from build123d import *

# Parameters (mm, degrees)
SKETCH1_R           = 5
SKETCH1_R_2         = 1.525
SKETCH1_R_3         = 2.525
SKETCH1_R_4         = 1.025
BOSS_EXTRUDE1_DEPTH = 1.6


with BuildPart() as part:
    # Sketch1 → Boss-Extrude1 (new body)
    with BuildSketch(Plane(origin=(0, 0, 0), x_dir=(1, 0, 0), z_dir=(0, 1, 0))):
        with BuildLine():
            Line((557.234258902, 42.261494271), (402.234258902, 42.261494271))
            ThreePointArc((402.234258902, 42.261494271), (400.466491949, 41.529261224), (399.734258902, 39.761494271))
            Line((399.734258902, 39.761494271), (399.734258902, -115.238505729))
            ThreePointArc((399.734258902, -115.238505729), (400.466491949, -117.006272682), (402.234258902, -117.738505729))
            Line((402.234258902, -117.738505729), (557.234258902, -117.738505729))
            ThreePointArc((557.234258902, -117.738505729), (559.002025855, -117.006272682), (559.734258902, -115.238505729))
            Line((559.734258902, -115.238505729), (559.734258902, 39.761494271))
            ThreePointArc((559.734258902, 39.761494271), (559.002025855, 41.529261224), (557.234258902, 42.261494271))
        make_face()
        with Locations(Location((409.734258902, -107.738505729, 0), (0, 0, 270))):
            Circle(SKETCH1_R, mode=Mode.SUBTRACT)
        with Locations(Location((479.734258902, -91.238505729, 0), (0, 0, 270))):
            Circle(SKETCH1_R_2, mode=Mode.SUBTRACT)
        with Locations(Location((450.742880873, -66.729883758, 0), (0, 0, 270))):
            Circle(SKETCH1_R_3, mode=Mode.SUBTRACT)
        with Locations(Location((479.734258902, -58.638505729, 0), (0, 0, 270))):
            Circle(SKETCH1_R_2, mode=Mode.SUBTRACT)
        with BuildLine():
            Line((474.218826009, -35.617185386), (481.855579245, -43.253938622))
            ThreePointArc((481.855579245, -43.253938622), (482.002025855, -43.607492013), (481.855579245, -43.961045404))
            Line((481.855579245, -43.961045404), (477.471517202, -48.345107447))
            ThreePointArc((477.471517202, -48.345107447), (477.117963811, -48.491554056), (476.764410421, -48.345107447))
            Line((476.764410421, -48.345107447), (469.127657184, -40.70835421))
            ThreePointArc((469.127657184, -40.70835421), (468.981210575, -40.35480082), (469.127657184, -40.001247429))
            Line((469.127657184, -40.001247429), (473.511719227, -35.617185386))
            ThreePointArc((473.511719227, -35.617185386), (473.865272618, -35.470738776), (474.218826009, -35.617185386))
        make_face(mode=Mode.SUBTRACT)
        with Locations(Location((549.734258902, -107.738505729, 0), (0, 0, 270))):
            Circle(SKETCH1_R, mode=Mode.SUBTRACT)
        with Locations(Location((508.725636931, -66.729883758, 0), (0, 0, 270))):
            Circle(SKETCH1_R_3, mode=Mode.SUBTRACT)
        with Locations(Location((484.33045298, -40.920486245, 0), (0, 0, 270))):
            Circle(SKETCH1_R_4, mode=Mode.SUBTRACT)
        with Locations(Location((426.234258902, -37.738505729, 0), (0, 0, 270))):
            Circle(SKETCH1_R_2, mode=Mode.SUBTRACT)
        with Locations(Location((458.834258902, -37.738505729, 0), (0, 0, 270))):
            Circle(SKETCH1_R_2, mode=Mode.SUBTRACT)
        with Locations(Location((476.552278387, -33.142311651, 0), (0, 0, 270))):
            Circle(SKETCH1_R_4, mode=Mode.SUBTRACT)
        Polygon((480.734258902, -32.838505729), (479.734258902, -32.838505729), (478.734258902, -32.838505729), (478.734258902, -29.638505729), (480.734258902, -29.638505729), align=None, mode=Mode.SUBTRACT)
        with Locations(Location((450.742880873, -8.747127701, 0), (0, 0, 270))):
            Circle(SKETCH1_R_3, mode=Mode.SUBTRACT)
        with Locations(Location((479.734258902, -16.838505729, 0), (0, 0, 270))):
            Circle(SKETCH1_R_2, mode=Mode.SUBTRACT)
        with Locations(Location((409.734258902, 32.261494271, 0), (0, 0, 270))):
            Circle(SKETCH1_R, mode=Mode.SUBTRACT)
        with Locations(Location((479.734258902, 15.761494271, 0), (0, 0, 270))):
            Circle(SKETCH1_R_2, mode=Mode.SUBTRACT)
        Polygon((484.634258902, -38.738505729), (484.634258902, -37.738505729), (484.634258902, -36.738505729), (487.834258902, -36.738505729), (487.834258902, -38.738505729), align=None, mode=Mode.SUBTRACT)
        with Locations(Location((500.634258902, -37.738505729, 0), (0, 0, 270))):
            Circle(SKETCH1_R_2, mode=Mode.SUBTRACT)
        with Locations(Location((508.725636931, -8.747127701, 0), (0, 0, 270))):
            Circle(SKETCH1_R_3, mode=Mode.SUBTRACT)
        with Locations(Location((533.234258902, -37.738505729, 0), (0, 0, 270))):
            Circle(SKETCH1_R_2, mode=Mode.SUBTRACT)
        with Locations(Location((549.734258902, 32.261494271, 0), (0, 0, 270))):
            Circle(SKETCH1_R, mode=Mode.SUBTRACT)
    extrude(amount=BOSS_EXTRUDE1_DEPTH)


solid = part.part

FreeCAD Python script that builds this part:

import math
import FreeCAD as App
import Part
import Sketcher
from FreeCAD import Vector
Q = App.Units.Quantity


def add_polygon(sketch, points):
    """Adds a closed chain of lines whose ends are joined by coincident constraints."""
    first, n = sketch.GeometryCount, len(points)
    for a, b in zip(points, points[1:] + points[:1]):
        sketch.addGeometry(Part.LineSegment(App.Vector(*a, 0), App.Vector(*b, 0)), False)
    for i in range(n):
        sketch.addConstraint(Sketcher.Constraint("Coincident", first + i, 2, first + (i + 1) % n, 1))

doc = App.newDocument("Part")
params = doc.addObject("Spreadsheet::Sheet", "Params")
for row, (alias, value) in enumerate([
    ("sketch1_diameter", "10 mm"),
    ("sketch1_radius", "2.5 mm"),
    ("sketch1_radius2", "0.5 mm"),
    ("sketch1_diameter2", "5.05 mm"),
    ("sketch1_diameter3", "3.05 mm"),
    ("pad1_length", "1.6 mm"),
], start=1):
    params.set(f"A{row}", alias)
    params.set(f"B{row}", "=" + value)
    params.setAlias(f"B{row}", alias)

body = doc.addObject("PartDesign::Body", "Body")

sketch1 = doc.addObject("Sketcher::SketchObject", "Sketch")
body.addObject(sketch1)
sketch1.AttachmentSupport = (doc.XZ_Plane, [""])
sketch1.MapMode = "FlatFace"
sketch1.addGeometry(Part.LineSegment(Vector(557.2, -42.3, 0), Vector(402.2, -42.3, 0)), False)
sketch1.addGeometry(Part.ArcOfCircle(Part.Circle(Vector(402.2, -39.8, 0), Vector(0, 0, 1), 2.5), math.radians(180), math.radians(270)), False)
sketch1.addGeometry(Part.LineSegment(Vector(399.7, -39.8, 0), Vector(399.7, 115.2, 0)), False)
sketch1.addGeometry(Part.ArcOfCircle(Part.Circle(Vector(402.2, 115.2, 0), Vector(0, 0, 1), 2.5), math.radians(90), math.radians(180)), False)
sketch1.addGeometry(Part.LineSegment(Vector(402.2, 117.7, 0), Vector(557.2, 117.7, 0)), False)
sketch1.addGeometry(Part.ArcOfCircle(Part.Circle(Vector(557.2, 115.2, 0), Vector(0, 0, 1), 2.5), math.radians(0), math.radians(90)), False)
sketch1.addGeometry(Part.LineSegment(Vector(559.7, 115.2, 0), Vector(559.7, -39.8, 0)), False)
sketch1.addGeometry(Part.ArcOfCircle(Part.Circle(Vector(557.2, -39.8, 0), Vector(0, 0, 1), 2.5), math.radians(-90), math.radians(0)), False)
sketch1.addGeometry(Part.Circle(Vector(409.7, 107.7, 0), Vector(0, 0, 1), 5), False)
sketch1.addGeometry(Part.Circle(Vector(450.7, 66.7, 0), Vector(0, 0, 1), 2.5), False)
sketch1.addGeometry(Part.ArcOfCircle(Part.Circle(Vector(473.9, 36, 0), Vector(0, 0, 1), 0.5), math.radians(-135), math.radians(-45)), False)
sketch1.addGeometry(Part.LineSegment(Vector(474.2, 35.6, 0), Vector(481.9, 43.3, 0)), False)
sketch1.addGeometry(Part.ArcOfCircle(Part.Circle(Vector(481.5, 43.6, 0), Vector(0, 0, 1), 0.5), math.radians(-45), math.radians(45)), False)
sketch1.addGeometry(Part.LineSegment(Vector(481.9, 44, 0), Vector(477.5, 48.3, 0)), False)
sketch1.addGeometry(Part.ArcOfCircle(Part.Circle(Vector(477.1, 48, 0), Vector(0, 0, 1), 0.5), math.radians(45), math.radians(135)), False)
sketch1.addGeometry(Part.LineSegment(Vector(476.8, 48.3, 0), Vector(469.1, 40.7, 0)), False)
sketch1.addGeometry(Part.ArcOfCircle(Part.Circle(Vector(469.5, 40.4, 0), Vector(0, 0, 1), 0.5), math.radians(135), math.radians(225)), False)
sketch1.addGeometry(Part.LineSegment(Vector(469.1, 40, 0), Vector(473.5, 35.6, 0)), False)
sketch1.addGeometry(Part.Circle(Vector(479.7, 91.2, 0), Vector(0, 0, 1), 1.5), False)
sketch1.addGeometry(Part.Circle(Vector(549.7, 107.7, 0), Vector(0, 0, 1), 5), False)
sketch1.addGeometry(Part.Circle(Vector(479.7, 58.6, 0), Vector(0, 0, 1), 1.5), False)
sketch1.addGeometry(Part.Circle(Vector(508.7, 66.7, 0), Vector(0, 0, 1), 2.5), False)
sketch1.addGeometry(Part.Circle(Vector(484.3, 40.9, 0), Vector(0, 0, 1), 1), False)
sketch1.addGeometry(Part.Circle(Vector(426.2, 37.7, 0), Vector(0, 0, 1), 1.5), False)
sketch1.addGeometry(Part.Circle(Vector(458.8, 37.7, 0), Vector(0, 0, 1), 1.5), False)
sketch1.addGeometry(Part.Circle(Vector(476.6, 33.1, 0), Vector(0, 0, 1), 1), False)
sketch1.addGeometry(Part.Circle(Vector(450.7, 8.7, 0), Vector(0, 0, 1), 2.5), False)
sketch1.addGeometry(Part.Circle(Vector(409.7, -32.3, 0), Vector(0, 0, 1), 5), False)
add_polygon(sketch1, [(487.8, 38.7), (484.6, 38.7), (484.6, 36.7), (487.8, 36.7)])
add_polygon(sketch1, [(480.7, 29.6), (480.7, 32.8), (478.7, 32.8), (478.7, 29.6)])
sketch1.addGeometry(Part.Circle(Vector(500.6, 37.7, 0), Vector(0, 0, 1), 1.5), False)
sketch1.addGeometry(Part.Circle(Vector(479.7, 16.8, 0), Vector(0, 0, 1), 1.5), False)
sketch1.addGeometry(Part.Circle(Vector(508.7, 8.7, 0), Vector(0, 0, 1), 2.5), False)
sketch1.addGeometry(Part.Circle(Vector(533.2, 37.7, 0), Vector(0, 0, 1), 1.5), False)
sketch1.addGeometry(Part.Circle(Vector(479.7, -15.8, 0), Vector(0, 0, 1), 1.5), False)
sketch1.addGeometry(Part.Circle(Vector(549.7, -32.3, 0), Vector(0, 0, 1), 5), False)
sketch1.addConstraint(Sketcher.Constraint("Tangent", 0, 2, 1, 2))
sketch1.addConstraint(Sketcher.Constraint("Tangent", 1, 1, 2, 1))
sketch1.addConstraint(Sketcher.Constraint("Tangent", 2, 2, 3, 2))
sketch1.addConstraint(Sketcher.Constraint("Tangent", 3, 1, 4, 1))
sketch1.addConstraint(Sketcher.Constraint("Tangent", 4, 2, 5, 2))
sketch1.addConstraint(Sketcher.Constraint("Tangent", 5, 1, 6, 1))
sketch1.addConstraint(Sketcher.Constraint("Tangent", 6, 2, 7, 2))
sketch1.addConstraint(Sketcher.Constraint("Tangent", 7, 1, 0, 1))
sketch1.addConstraint(Sketcher.Constraint("Tangent", 10, 2, 11, 1))
sketch1.addConstraint(Sketcher.Constraint("Tangent", 11, 2, 12, 1))
sketch1.addConstraint(Sketcher.Constraint("Tangent", 12, 2, 13, 1))
sketch1.addConstraint(Sketcher.Constraint("Tangent", 13, 2, 14, 1))
sketch1.addConstraint(Sketcher.Constraint("Tangent", 14, 2, 15, 1))
sketch1.addConstraint(Sketcher.Constraint("Tangent", 15, 2, 16, 1))
sketch1.addConstraint(Sketcher.Constraint("Tangent", 16, 2, 17, 1))
sketch1.addConstraint(Sketcher.Constraint("Tangent", 17, 2, 10, 1))
sketch1.addConstraint(Sketcher.Constraint("Horizontal", 0))
sketch1.addConstraint(Sketcher.Constraint("Vertical", 2))
sketch1.addConstraint(Sketcher.Constraint("Horizontal", 4))
sketch1.addConstraint(Sketcher.Constraint("Vertical", 6))
sketch1.addConstraint(Sketcher.Constraint("Horizontal", 28))
sketch1.addConstraint(Sketcher.Constraint("Vertical", 29))
sketch1.addConstraint(Sketcher.Constraint("Horizontal", 30))
sketch1.addConstraint(Sketcher.Constraint("Vertical", 31))
sketch1.addConstraint(Sketcher.Constraint("Vertical", 32))
sketch1.addConstraint(Sketcher.Constraint("Horizontal", 33))
sketch1.addConstraint(Sketcher.Constraint("Vertical", 34))
sketch1.addConstraint(Sketcher.Constraint("Horizontal", 35))
sketch1.addConstraint(Sketcher.Constraint("Equal", 1, 3))
sketch1.addConstraint(Sketcher.Constraint("Equal", 3, 5))
sketch1.addConstraint(Sketcher.Constraint("Equal", 5, 7))
sketch1.addConstraint(Sketcher.Constraint("Equal", 10, 12))
sketch1.addConstraint(Sketcher.Constraint("Equal", 12, 14))
sketch1.addConstraint(Sketcher.Constraint("Equal", 14, 16))
sketch1.addConstraint(Sketcher.Constraint("Equal", 8, 19))
sketch1.addConstraint(Sketcher.Constraint("Equal", 18, 20))
sketch1.addConstraint(Sketcher.Constraint("Equal", 9, 21))
sketch1.addConstraint(Sketcher.Constraint("Equal", 20, 23))
sketch1.addConstraint(Sketcher.Constraint("Equal", 23, 24))
sketch1.addConstraint(Sketcher.Constraint("Equal", 22, 25))
sketch1.addConstraint(Sketcher.Constraint("Equal", 21, 26))
sketch1.addConstraint(Sketcher.Constraint("Equal", 19, 27))
sketch1.addConstraint(Sketcher.Constraint("Equal", 24, 36))
sketch1.addConstraint(Sketcher.Constraint("Equal", 36, 37))
sketch1.addConstraint(Sketcher.Constraint("Equal", 26, 38))
sketch1.addConstraint(Sketcher.Constraint("Equal", 37, 39))
sketch1.addConstraint(Sketcher.Constraint("Equal", 39, 40))
sketch1.addConstraint(Sketcher.Constraint("Equal", 27, 41))
sketch1.addConstraint(Sketcher.Constraint("Perpendicular", 11, 13))
sketch1.addConstraint(Sketcher.Constraint("Perpendicular", 13, 15))
sketch1.addConstraint(Sketcher.Constraint("Perpendicular", 15, 17))
sketch1.addConstraint(Sketcher.Constraint("Horizontal", 8, 3, 19, 3))
sketch1.addConstraint(Sketcher.Constraint("Horizontal", 9, 3, 21, 3))
sketch1.addConstraint(Sketcher.Constraint("Horizontal", 23, 3, 24, 3))
sketch1.addConstraint(Sketcher.Constraint("Horizontal", 24, 3, 36, 3))
sketch1.addConstraint(Sketcher.Constraint("Horizontal", 26, 3, 38, 3))
sketch1.addConstraint(Sketcher.Constraint("Horizontal", 36, 3, 39, 3))
sketch1.addConstraint(Sketcher.Constraint("Horizontal", 27, 3, 41, 3))
sketch1.addConstraint(Sketcher.Constraint("Horizontal", 13, 2, 14, 2))
sketch1.addConstraint(Sketcher.Constraint("Vertical", 18, 3, 20, 3))
sketch1.addConstraint(Sketcher.Constraint("Vertical", 9, 3, 26, 3))
sketch1.addConstraint(Sketcher.Constraint("Vertical", 8, 3, 27, 3))
sketch1.addConstraint(Sketcher.Constraint("Vertical", 20, 3, 37, 3))
sketch1.addConstraint(Sketcher.Constraint("Vertical", 21, 3, 38, 3))
sketch1.addConstraint(Sketcher.Constraint("Vertical", 37, 3, 40, 3))
sketch1.addConstraint(Sketcher.Constraint("Vertical", 19, 3, 41, 3))
sketch1.addConstraint(Sketcher.Constraint("Equal", 4, 2))
sketch1.addConstraint(Sketcher.Constraint("Equal", 35, 29))
sketch1.addConstraint(Sketcher.Constraint("Equal", 30, 32))
sketch1.addConstraint(Sketcher.Constraint("Diameter", 8, Q("10 mm")))
sketch1.addConstraint(Sketcher.Constraint("Radius", 1, Q("2.5 mm")))
sketch1.addConstraint(Sketcher.Constraint("Radius", 10, Q("0.5 mm")))
sketch1.addConstraint(Sketcher.Constraint("Diameter", 9, Q("5.05 mm")))
sketch1.addConstraint(Sketcher.Constraint("Diameter", 18, Q("3.05 mm")))
sketch1.addConstraint(Sketcher.Constraint("Diameter", 22, Q("2.05 mm")))
sketch1.addConstraint(Sketcher.Constraint("DistanceX", 0, 2, 0, 1, Q("155 mm")))
sketch1.addConstraint(Sketcher.Constraint("DistanceX", 33, 2, 33, 1, Q("2 mm")))
sketch1.addConstraint(Sketcher.Constraint("DistanceX", 28, 2, 28, 1, Q("3.2 mm")))
sketch1.addConstraint(Sketcher.Constraint("DistanceX", 18, 3, 19, 3, Q("70 mm")))
sketch1.addConstraint(Sketcher.Constraint("DistanceY", 27, 3, 23, 3, Q("70 mm")))
sketch1.addConstraint(Sketcher.Constraint("DistanceY", 0, 2, 27, 3, Q("10 mm")))
sketch1.addConstraint(Sketcher.Constraint("DistanceX", 0, 2, 23, 3, Q("24 mm")))
sketch1.addConstraint(Sketcher.Constraint("DistanceX", 1, 1, 27, 3, Q("10 mm")))
sketch1.addConstraint(Sketcher.Constraint("DistanceX", 2, 2, 18, 3, Q("80 mm")))
sketch1.addConstraint(Sketcher.Constraint("DistanceY", 18, 3, 2, 2, Q("24 mm")))
sketch1.addConstraint(Sketcher.Constraint("DistanceY", 8, 3, 3, 1, Q("10 mm")))
sketch1.addConstraint(Sketcher.Constraint("DistanceX", 39, 3, 4, 2, Q("24 mm")))
sketch1.addConstraint(Sketcher.Constraint("DistanceY", 6, 2, 40, 3, Q("24 mm")))
sketch1.addConstraint(Sketcher.Constraint("Distance", 11, Q("10.8 mm")))
sketch1.addConstraint(Sketcher.Constraint("Distance", 13, Q("6.2 mm")))
sketch1.addConstraint(Sketcher.Constraint("DistanceX", 27, 3, 24, 3, Q("49.1 mm")))
sketch1.addConstraint(Sketcher.Constraint("DistanceX", 36, 3, 39, 3, Q("32.6 mm")))
sketch1.addConstraint(Sketcher.Constraint("DistanceY", 40, 3, 37, 3, Q("32.6 mm")))
sketch1.addConstraint(Sketcher.Constraint("DistanceX", 32, 2, 29, 2, Q("3.9 mm")))
sketch1.addConstraint(Sketcher.Constraint("DistanceY", 32, 2, 29, 2, Q("3.9 mm")))
sketch1.addConstraint(Sketcher.Constraint("DistanceY", -1, 1, 16, 3, Q("40.354801 mm")))
sketch1.addConstraint(Sketcher.Constraint("DistanceY", 10, 2, 22, 3, Q("5.303301 mm")))
sketch1.addConstraint(Sketcher.Constraint("DistanceX", 24, 3, 15, 2, Q("10.293398 mm")))
sketch1.addConstraint(Sketcher.Constraint("DistanceX", -1, 1, 1, 3, Q("402.234259 mm")))
sketch1.addConstraint(Sketcher.Constraint("DistanceX", -1, 1, 9, 3, Q("450.742881 mm")))
sketch1.addConstraint(Sketcher.Constraint("DistanceX", -1, 1, 25, 3, Q("476.552278 mm")))
sketch1.addConstraint(Sketcher.Constraint("DistanceY", -1, 1, 25, 3, Q("33.142312 mm")))
sketch1.addConstraint(Sketcher.Constraint("DistanceX", -1, 1, 28, 2, Q("484.634259 mm")))
sketch1.addConstraint(Sketcher.Constraint("DistanceY", 9, 3, 8, 3, Q("41.008622 mm")))
sketch1.addConstraint(Sketcher.Constraint("DistanceY", 12, 3, 9, 3, Q("23.122392 mm")))
sketch1.addConstraint(Sketcher.Constraint("DistanceY", 14, 3, 20, 3, Q("10.646952 mm")))
sketch1.addConstraint(Sketcher.Constraint("DistanceX", 20, 3, 21, 3, Q("28.991378 mm")))
sketch1.addConstraint(Sketcher.Constraint("DistanceX", 14, 3, 22, 3, Q("7.212489 mm")))
sketch1.addConstraint(Sketcher.Constraint("DistanceY", 26, 3, 24, 3, Q("28.991378 mm")))
sketch1.addConstraint(Sketcher.Constraint("DistanceY", 28, 2, 22, 3, Q("2.181981 mm")))
sketch1.setExpression("Constraints[77]", "Params.sketch1_diameter")
sketch1.setExpression("Constraints[78]", "Params.sketch1_radius")
sketch1.setExpression("Constraints[79]", "Params.sketch1_radius2")
sketch1.setExpression("Constraints[80]", "Params.sketch1_diameter2")
sketch1.setExpression("Constraints[81]", "Params.sketch1_diameter3")
pad1 = doc.addObject("PartDesign::Pad", "Pad")
body.addObject(pad1)
pad1.Profile = sketch1
pad1.setExpression("Length", "Params.pad1_length")
pad1.Reversed = True

doc.recompute()
